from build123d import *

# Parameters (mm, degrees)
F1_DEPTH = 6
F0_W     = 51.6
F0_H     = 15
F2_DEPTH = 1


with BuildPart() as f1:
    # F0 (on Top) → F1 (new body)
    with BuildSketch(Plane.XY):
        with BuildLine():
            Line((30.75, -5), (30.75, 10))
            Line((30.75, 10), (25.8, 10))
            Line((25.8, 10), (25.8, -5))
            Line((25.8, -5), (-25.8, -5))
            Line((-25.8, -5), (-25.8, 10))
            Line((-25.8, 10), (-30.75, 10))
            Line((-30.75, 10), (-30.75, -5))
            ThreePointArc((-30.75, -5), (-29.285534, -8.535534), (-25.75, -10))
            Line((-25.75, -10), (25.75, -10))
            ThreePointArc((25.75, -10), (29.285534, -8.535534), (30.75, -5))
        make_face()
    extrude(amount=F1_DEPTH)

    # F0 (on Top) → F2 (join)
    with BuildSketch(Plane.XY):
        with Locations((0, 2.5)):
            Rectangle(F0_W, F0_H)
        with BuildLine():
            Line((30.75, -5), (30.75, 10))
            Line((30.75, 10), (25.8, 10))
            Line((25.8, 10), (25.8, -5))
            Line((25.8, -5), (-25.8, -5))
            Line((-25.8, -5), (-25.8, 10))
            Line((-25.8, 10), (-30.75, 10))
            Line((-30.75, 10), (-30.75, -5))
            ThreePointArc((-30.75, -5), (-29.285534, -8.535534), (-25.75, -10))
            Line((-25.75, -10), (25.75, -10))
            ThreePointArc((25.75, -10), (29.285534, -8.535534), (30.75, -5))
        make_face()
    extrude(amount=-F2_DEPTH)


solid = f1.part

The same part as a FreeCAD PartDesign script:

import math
import FreeCAD as App
import Part
import Sketcher

V = App.Vector
Q = App.Units.Quantity

doc = App.newDocument("Part")
params = doc.addObject("Spreadsheet::Sheet", "Params")
for row, (alias, value) in enumerate([
    ("sketch1_radius", "5 mm"),
    ("sketch1_height", "15 mm"),
    ("sketch1_width", "51.6 mm"),
    ("sketch1_width2", "51.5 mm"),
    ("pad1_length", "6 mm"),
    ("sketch2_radius", "5 mm"),
    ("sketch2_height", "15 mm"),
    ("sketch2_width", "51.5 mm"),
    ("pad2_length", "1 mm"),
], start=1):
    params.set(f"A{row}", alias)
    params.set(f"B{row}", "=" + value)
    params.setAlias(f"B{row}", alias)

body = doc.addObject("PartDesign::Body", "Body")

sketch1 = body.newObject("Sketcher::SketchObject", "Sketch")
sketch1.AttachmentSupport = (doc.getObject("XY_Plane"), [""])
sketch1.MapMode = "FlatFace"
sketch1.addGeometry(Part.LineSegment(V(30.75, -5, 0), V(30.75, 10, 0)), False)
sketch1.addGeometry(Part.LineSegment(V(30.75, 10, 0), V(25.8, 10, 0)), False)
sketch1.addGeometry(Part.LineSegment(V(25.8, 10, 0), V(25.8, -5, 0)), False)
sketch1.addGeometry(Part.LineSegment(V(25.8, -5, 0), V(-25.8, -5, 0)), False)
sketch1.addGeometry(Part.LineSegment(V(-25.8, -5, 0), V(-25.8, 10, 0)), False)
sketch1.addGeometry(Part.LineSegment(V(-25.8, 10, 0), V(-30.75, 10, 0)), False)
sketch1.addGeometry(Part.LineSegment(V(-30.75, 10, 0), V(-30.75, -5, 0)), False)
sketch1.addGeometry(Part.ArcOfCircle(Part.Circle(V(-25.75, -5, 0), V(0, 0, 1), 5), math.radians(179.999996), math.radians(270.000004)), False)
sketch1.addGeometry(Part.LineSegment(V(-25.75, -10, 0), V(25.75, -10, 0)), False)
sketch1.addGeometry(Part.ArcOfCircle(Part.Circle(V(25.75, -5, 0), V(0, 0, 1), 5), math.radians(-90.000004), math.radians(0.000004)), False)
sketch1.addConstraint(Sketcher.Constraint("Coincident", 0, 2, 1, 1))
sketch1.addConstraint(Sketcher.Constraint("Coincident", 1, 2, 2, 1))
sketch1.addConstraint(Sketcher.Constraint("Coincident", 2, 2, 3, 1))
sketch1.addConstraint(Sketcher.Constraint("Coincident", 3, 2, 4, 1))
sketch1.addConstraint(Sketcher.Constraint("Coincident", 4, 2, 5, 1))
sketch1.addConstraint(Sketcher.Constraint("Coincident", 5, 2, 6, 1))
sketch1.addConstraint(Sketcher.Constraint("Tangent", 6, 2, 7, 1))
sketch1.addConstraint(Sketcher.Constraint("Tangent", 7, 2, 8, 1))
sketch1.addConstraint(Sketcher.Constraint("Tangent", 8, 2, 9, 1))
sketch1.addConstraint(Sketcher.Constraint("Tangent", 9, 2, 0, 1))
sketch1.addConstraint(Sketcher.Constraint("Vertical", 0))
sketch1.addConstraint(Sketcher.Constraint("Horizontal", 1))
sketch1.addConstraint(Sketcher.Constraint("Vertical", 2))
sketch1.addConstraint(Sketcher.Constraint("Horizontal", 3))
sketch1.addConstraint(Sketcher.Constraint("Vertical", 4))
sketch1.addConstraint(Sketcher.Constraint("Horizontal", 5))
sketch1.addConstraint(Sketcher.Constraint("Vertical", 6))
sketch1.addConstraint(Sketcher.Constraint("Horizontal", 8))
sketch1.addConstraint(Sketcher.Constraint("Equal", 7, 9))
sketch1.addConstraint(Sketcher.Constraint("Symmetric", 1, 2, 4, 2, -2))
sketch1.addConstraint(Sketcher.Constraint("Horizontal", 9, 3, 2, 2))
sketch1.addConstraint(Sketcher.Constraint("Equal", 1, 5))
sketch1.addConstraint(Sketcher.Constraint("Radius", 7, Q("5 mm")))
sketch1.addConstraint(Sketcher.Constraint("DistanceY", 0, 1, 0, 2, Q("15 mm")))
sketch1.addConstraint(Sketcher.Constraint("DistanceX", 3, 2, 3, 1, Q("51.6 mm")))
sketch1.addConstraint(Sketcher.Constraint("DistanceX", 8, 1, 8, 2, Q("51.5 mm")))
sketch1.addConstraint(Sketcher.Constraint("DistanceY", 7, 3, -1, 1, Q("5 mm")))
sketch1.setExpression("Constraints[22]", "Params.sketch1_radius")
sketch1.setExpression("Constraints[23]", "Params.sketch1_height")
sketch1.setExpression("Constraints[24]", "Params.sketch1_width")
sketch1.setExpression("Constraints[25]", "Params.sketch1_width2")
pad1 = body.newObject("PartDesign::Pad", "Pad")
pad1.Profile = sketch1
pad1.setExpression("Length", "Params.pad1_length")

sketch2 = body.newObject("Sketcher::SketchObject", "Sketch001")
sketch2.AttachmentSupport = (doc.getObject("XY_Plane"), [""])
sketch2.MapMode = "FlatFace"
sketch2.addGeometry(Part.LineSegment(V(-30.75, 10, 0), V(-30.75, -5, 0)), False)
sketch2.addGeometry(Part.ArcOfCircle(Part.Circle(V(-25.75, -5, 0), V(0, 0, 1), 5), math.radians(179.999996), math.radians(270.000004)), False)
sketch2.addGeometry(Part.LineSegment(V(-25.75, -10, 0), V(25.75, -10, 0)), False)
sketch2.addGeometry(Part.ArcOfCircle(Part.Circle(V(25.75, -5, 0), V(0, 0, 1), 5), math.radians(-90.000004), math.radians(0.000004)), False)
sketch2.addGeometry(Part.LineSegment(V(30.75, -5, 0), V(30.75, 10, 0)), False)
sketch2.addGeometry(Part.LineSegment(V(30.75, 10, 0), V(-30.75, 10, 0)), False)
sketch2.addConstraint(Sketcher.Constraint("Tangent", 0, 2, 1, 1))
sketch2.addConstraint(Sketcher.Constraint("Tangent", 1, 2, 2, 1))
sketch2.addConstraint(Sketcher.Constraint("Tangent", 2, 2, 3, 1))
sketch2.addConstraint(Sketcher.Constraint("Tangent", 3, 2, 4, 1))
sketch2.addConstraint(Sketcher.Constraint("Coincident", 4, 2, 5, 1))
sketch2.addConstraint(Sketcher.Constraint("Coincident", 5, 2, 0, 1))
sketch2.addConstraint(Sketcher.Constraint("Vertical", 0))
sketch2.addConstraint(Sketcher.Constraint("Horizontal", 2))
sketch2.addConstraint(Sketcher.Constraint("Vertical", 4))
sketch2.addConstraint(Sketcher.Constraint("Horizontal", 5))
sketch2.addConstraint(Sketcher.Constraint("Equal", 1, 3))
sketch2.addConstraint(Sketcher.Constraint("Radius", 1, Q("5 mm")))
sketch2.addConstraint(Sketcher.Constraint("DistanceY", 0, 2, 0, 1, Q("15 mm")))
sketch2.addConstraint(Sketcher.Constraint("DistanceX", 2, 1, 2, 2, Q("51.5 mm")))
sketch2.addConstraint(Sketcher.Constraint("DistanceY", 1, 3, -1, 1, Q("5 mm")))
sketch2.addConstraint(Sketcher.Constraint("DistanceX", 1, 3, -1, 1, Q("25.75 mm")))
sketch2.setExpression("Constraints[11]", "Params.sketch2_radius")
sketch2.setExpression("Constraints[12]", "Params.sketch2_height")
sketch2.setExpression("Constraints[13]", "Params.sketch2_width")
pad2 = body.newObject("PartDesign::Pad", "Pad001")
pad2.Profile = sketch2
pad2.setExpression("Length", "Params.pad2_length")
pad2.Reversed = True

doc.recompute()
